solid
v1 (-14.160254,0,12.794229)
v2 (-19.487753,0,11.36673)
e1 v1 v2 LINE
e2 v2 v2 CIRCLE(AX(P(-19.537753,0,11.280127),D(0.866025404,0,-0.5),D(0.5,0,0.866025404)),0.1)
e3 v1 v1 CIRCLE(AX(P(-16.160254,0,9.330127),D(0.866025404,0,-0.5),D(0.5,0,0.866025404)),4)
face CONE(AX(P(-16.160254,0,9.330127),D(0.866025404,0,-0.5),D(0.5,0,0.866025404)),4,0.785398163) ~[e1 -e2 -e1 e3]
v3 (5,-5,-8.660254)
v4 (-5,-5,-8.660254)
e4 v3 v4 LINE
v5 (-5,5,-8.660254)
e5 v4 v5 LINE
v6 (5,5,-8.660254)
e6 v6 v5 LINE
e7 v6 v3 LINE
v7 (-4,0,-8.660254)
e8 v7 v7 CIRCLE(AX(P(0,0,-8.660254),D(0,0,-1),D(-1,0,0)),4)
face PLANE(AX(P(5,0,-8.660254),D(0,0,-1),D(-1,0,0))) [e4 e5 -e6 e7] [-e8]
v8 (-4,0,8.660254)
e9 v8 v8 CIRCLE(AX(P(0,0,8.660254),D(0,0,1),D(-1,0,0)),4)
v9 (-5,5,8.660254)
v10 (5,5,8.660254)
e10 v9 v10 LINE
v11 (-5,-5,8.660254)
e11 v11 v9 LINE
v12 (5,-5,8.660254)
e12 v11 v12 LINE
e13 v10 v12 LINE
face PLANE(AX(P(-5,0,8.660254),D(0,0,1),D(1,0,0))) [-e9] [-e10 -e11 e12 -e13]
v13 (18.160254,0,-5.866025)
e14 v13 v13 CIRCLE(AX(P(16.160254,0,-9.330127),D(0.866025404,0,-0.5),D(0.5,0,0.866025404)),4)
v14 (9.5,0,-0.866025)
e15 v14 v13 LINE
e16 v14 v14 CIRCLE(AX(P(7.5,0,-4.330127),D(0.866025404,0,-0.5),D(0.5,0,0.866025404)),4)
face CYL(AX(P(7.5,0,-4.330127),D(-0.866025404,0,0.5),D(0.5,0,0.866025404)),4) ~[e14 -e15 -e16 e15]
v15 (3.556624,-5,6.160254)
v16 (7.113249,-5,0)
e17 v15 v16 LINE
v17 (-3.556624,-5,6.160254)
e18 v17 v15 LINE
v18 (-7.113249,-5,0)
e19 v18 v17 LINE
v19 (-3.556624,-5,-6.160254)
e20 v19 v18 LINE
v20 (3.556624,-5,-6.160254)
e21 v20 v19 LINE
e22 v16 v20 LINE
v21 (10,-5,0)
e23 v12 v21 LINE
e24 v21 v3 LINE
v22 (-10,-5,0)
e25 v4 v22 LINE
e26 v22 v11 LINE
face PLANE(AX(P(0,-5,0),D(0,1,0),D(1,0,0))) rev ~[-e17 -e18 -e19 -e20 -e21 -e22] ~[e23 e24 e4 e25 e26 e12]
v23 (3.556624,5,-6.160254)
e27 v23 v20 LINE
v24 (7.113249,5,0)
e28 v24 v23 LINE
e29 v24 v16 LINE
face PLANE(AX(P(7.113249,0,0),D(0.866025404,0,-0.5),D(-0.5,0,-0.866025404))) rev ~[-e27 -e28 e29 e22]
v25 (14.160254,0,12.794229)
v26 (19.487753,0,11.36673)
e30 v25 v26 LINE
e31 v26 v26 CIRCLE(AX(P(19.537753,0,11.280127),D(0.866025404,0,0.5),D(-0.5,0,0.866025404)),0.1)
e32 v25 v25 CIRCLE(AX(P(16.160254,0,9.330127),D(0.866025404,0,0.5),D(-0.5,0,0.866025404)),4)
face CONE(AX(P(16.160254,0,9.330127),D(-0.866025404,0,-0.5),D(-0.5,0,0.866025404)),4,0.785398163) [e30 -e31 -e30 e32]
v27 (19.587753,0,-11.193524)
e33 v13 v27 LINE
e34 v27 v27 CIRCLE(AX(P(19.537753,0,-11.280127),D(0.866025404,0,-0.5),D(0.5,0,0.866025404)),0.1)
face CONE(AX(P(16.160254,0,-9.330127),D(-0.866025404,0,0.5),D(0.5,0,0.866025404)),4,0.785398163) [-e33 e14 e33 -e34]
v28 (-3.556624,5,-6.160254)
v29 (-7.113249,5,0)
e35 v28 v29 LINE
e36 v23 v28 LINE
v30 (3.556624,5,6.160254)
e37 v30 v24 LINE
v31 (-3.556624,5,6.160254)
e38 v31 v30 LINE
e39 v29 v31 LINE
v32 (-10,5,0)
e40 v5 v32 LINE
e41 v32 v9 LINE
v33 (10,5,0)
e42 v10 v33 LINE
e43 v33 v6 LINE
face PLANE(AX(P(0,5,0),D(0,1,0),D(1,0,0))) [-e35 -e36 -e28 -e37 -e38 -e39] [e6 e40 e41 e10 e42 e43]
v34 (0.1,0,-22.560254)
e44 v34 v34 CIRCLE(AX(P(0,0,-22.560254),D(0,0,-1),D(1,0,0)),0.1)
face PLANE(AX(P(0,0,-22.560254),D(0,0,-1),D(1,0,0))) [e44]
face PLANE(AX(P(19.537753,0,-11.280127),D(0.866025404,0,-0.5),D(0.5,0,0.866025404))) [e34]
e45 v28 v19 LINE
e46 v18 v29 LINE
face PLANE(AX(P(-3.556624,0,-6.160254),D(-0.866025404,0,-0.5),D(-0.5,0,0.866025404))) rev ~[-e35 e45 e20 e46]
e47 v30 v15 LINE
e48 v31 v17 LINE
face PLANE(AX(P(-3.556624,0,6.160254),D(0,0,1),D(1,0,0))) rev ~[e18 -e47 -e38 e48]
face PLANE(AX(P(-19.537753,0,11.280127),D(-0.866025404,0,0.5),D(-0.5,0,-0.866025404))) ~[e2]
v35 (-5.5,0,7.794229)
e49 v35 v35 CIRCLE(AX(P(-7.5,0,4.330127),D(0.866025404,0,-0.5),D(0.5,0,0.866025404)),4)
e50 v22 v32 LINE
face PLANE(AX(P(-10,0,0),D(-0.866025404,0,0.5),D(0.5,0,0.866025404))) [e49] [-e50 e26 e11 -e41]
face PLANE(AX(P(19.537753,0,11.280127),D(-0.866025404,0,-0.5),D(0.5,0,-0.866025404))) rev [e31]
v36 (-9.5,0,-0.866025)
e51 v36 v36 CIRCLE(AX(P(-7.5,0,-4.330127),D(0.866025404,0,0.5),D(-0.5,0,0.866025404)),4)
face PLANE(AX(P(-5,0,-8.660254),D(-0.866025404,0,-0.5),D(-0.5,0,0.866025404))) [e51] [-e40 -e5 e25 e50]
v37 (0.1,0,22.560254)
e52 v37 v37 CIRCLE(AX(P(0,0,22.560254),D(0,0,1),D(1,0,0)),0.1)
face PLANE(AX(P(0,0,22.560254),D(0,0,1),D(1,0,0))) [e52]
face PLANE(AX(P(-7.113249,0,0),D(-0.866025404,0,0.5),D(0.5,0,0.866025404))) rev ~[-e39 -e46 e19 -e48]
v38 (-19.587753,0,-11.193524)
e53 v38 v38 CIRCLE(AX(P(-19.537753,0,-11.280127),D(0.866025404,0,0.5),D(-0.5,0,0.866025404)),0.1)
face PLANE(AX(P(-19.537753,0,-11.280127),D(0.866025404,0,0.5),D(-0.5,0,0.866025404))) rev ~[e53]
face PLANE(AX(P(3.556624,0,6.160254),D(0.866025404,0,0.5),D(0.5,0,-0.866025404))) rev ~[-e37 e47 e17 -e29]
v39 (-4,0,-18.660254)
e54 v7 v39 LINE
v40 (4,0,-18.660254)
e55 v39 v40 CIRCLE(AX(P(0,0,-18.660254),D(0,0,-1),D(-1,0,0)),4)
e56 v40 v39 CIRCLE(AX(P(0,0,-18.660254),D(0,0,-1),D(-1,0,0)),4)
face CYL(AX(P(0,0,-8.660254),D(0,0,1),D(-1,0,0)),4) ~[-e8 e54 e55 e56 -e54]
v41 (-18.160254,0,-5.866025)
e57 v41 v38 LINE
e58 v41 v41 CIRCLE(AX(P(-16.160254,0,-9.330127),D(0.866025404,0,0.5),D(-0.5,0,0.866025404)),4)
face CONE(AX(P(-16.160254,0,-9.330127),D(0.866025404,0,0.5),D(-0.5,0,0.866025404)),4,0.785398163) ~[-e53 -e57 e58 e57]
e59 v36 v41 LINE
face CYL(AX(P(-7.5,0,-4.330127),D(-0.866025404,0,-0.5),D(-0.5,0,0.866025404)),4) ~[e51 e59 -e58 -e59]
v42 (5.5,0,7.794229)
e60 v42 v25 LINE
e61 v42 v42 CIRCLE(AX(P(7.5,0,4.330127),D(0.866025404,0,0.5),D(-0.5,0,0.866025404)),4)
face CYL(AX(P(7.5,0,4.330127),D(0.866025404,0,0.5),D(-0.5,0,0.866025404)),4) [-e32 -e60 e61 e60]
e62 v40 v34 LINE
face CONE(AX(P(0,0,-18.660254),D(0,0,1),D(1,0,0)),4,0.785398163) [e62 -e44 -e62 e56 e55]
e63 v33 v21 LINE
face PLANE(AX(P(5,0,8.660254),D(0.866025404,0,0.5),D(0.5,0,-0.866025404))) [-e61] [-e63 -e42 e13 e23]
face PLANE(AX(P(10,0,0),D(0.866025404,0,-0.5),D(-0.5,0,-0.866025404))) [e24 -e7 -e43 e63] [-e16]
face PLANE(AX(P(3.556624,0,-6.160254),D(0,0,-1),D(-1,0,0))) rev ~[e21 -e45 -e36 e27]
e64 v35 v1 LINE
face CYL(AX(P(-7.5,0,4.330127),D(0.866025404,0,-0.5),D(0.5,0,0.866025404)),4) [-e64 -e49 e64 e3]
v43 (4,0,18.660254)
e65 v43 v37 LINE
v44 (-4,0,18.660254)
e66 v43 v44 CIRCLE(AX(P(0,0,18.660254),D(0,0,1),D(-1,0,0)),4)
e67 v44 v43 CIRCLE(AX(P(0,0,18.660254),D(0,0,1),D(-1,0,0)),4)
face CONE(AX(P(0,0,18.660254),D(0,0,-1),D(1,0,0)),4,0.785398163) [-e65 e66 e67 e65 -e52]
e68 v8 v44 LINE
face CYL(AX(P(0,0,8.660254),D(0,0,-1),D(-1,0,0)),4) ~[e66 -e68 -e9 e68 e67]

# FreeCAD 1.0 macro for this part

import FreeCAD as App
import Part
import Sketcher
Q = App.Units.Quantity

doc = App.newDocument("Part")
body = doc.addObject("PartDesign::Body", "Body")

sketch1 = body.newObject("Sketcher::SketchObject", "Sketch")
sketch1.AttachmentSupport = (doc.getObject("XZ_Plane"), [""])
sketch1.MapMode = "FlatFace"
sketch1.addGeometry([
    Part.LineSegment(App.Vector(5, -9, 0), App.Vector(-5, -9, 0)),
    Part.LineSegment(App.Vector(-5, -9, 0), App.Vector(-10, 0, 0)),
    Part.LineSegment(App.Vector(-10, 0, 0), App.Vector(-5, 9, 0)),
    Part.LineSegment(App.Vector(-5, 9, 0), App.Vector(5, 9, 0)),
    Part.LineSegment(App.Vector(5, 9, 0), App.Vector(10, 0, 0)),
    Part.LineSegment(App.Vector(10, 0, 0), App.Vector(5, -9, 0)),
    Part.LineSegment(App.Vector(-4, 6, 0), App.Vector(-7, 0, 0)),
    Part.LineSegment(App.Vector(-7, 0, 0), App.Vector(-4, -6, 0)),
    Part.LineSegment(App.Vector(-4, -6, 0), App.Vector(4, -6, 0)),
    Part.LineSegment(App.Vector(4, -6, 0), App.Vector(7, 0, 0)),
    Part.LineSegment(App.Vector(7, 0, 0), App.Vector(4, 6, 0)),
    Part.LineSegment(App.Vector(4, 6, 0), App.Vector(-4, 6, 0)),
], False)
sketch1.addConstraint([
    Sketcher.Constraint("Coincident", 0, 2, 1, 1),
    Sketcher.Constraint("Coincident", 1, 2, 2, 1),
    Sketcher.Constraint("Coincident", 2, 2, 3, 1),
    Sketcher.Constraint("Coincident", 3, 2, 4, 1),
    Sketcher.Constraint("Coincident", 4, 2, 5, 1),
    Sketcher.Constraint("Coincident", 5, 2, 0, 1),
    Sketcher.Constraint("Coincident", 6, 2, 7, 1),
    Sketcher.Constraint("Coincident", 7, 2, 8, 1),
    Sketcher.Constraint("Coincident", 8, 2, 9, 1),
    Sketcher.Constraint("Coincident", 9, 2, 10, 1),
    Sketcher.Constraint("Coincident", 10, 2, 11, 1),
    Sketcher.Constraint("Coincident", 11, 2, 6, 1),
    Sketcher.Constraint("Horizontal", 0),
    Sketcher.Constraint("Horizontal", 3),
    Sketcher.Constraint("Horizontal", 8),
    Sketcher.Constraint("Horizontal", 11),
    Sketcher.Constraint("Symmetric", 0, 2, 3, 2, -1, 1),
    Sketcher.Constraint("Symmetric", 1, 2, 4, 2, -1, 1),
    Sketcher.Constraint("Symmetric", 6, 2, 9, 2, -1, 1),
    Sketcher.Constraint("Symmetric", 7, 2, 10, 2, -1, 1),
    Sketcher.Constraint("PointOnObject", 1, 2, -1),
    Sketcher.Constraint("PointOnObject", 6, 2, -1),
    Sketcher.Constraint("Parallel", 2, 5),
    Sketcher.Constraint("Parallel", 5, 6),
    Sketcher.Constraint("Parallel", 4, 7),
    Sketcher.Constraint("Parallel", 6, 9),
    Sketcher.Constraint("Vertical", 0, 2, 2, 2),
    Sketcher.Constraint("DistanceX", 0, 2, 0, 1, Q("10 mm")),
    Sketcher.Constraint("Angle", 1, Q("120 deg")),
    Sketcher.Constraint("Distance", 1, Q("10 mm")),
    Sketcher.Constraint("DistanceY", 0, 2, 7, 2, Q("2.5 mm")),
    Sketcher.Constraint("DistanceX", 8, 1, 8, 2, Q("7.113249 mm")),
])
pad1 = body.newObject("PartDesign::Pad", "Pad")
pad1.Profile = sketch1
pad1.Length = 10
pad1.Midplane = True

sketch2 = body.newObject("Sketcher::SketchObject", "Sketch001")
sketch2.AttachmentSupport = (doc.getObject("XY_Plane"), [""])
sketch2.MapMode = "FlatFace"
sketch2.AttachmentOffset = App.Placement(App.Vector(0, 0, -8.660254), App.Rotation())
sketch2.addGeometry(Part.Circle(App.Vector(0, 0, 0), App.Vector(0, 0, 1), 4), False)
sketch2.addConstraint([
    Sketcher.Constraint("Coincident", 0, 3, -1, 1),
    Sketcher.Constraint("Diameter", 0, Q("8 mm")),
])
pad2 = body.newObject("PartDesign::Pad", "Pad001")
pad2.Profile = sketch2
pad2.Length = 10
pad2.Reversed = True

sketch3 = body.newObject("Sketcher::SketchObject", "Sketch002")
sketch3.AttachmentSupport = (doc.getObject("YZ_Plane"), [""])
sketch3.MapMode = "FlatFace"
sketch3.addGeometry([
    Part.LineSegment(App.Vector(0.1, -22.56, 0), App.Vector(4, -18.66, 0)),
    Part.LineSegment(App.Vector(4, -18.66, 0), App.Vector(0, -18.66, 0)),
    Part.LineSegment(App.Vector(0, -18.66, 0), App.Vector(0, -22.56, 0)),
    Part.LineSegment(App.Vector(0, -22.56, 0), App.Vector(0.1, -22.56, 0)),
], False)
sketch3.addConstraint([
    Sketcher.Constraint("Coincident", 0, 2, 1, 1),
    Sketcher.Constraint("Coincident", 1, 2, 2, 1),
    Sketcher.Constraint("Coincident", 2, 2, 3, 1),
    Sketcher.Constraint("Coincident", 3, 2, 0, 1),
    Sketcher.Constraint("Horizontal", 1),
    Sketcher.Constraint("Vertical", 2),
    Sketcher.Constraint("Horizontal", 3),
    Sketcher.Constraint("PointOnObject", 1, 2, -2),
    Sketcher.Constraint("DistanceX", 1, 2, 1, 1, Q("4 mm")),
    Sketcher.Constraint("Angle", 0, Q("45 deg")),
    Sketcher.Constraint("DistanceX", 3, 1, 3, 2, Q("0.1 mm")),
    Sketcher.Constraint("DistanceY", 0, 2, -1, 1, Q("18.660254 mm")),
])
revolution = body.newObject("PartDesign::Revolution", "Revolution")
revolution.Profile = sketch3
revolution.ReferenceAxis = (sketch3, ["V_Axis"])
revolution.Angle = 360

sketch4 = body.newObject("Sketcher::SketchObject", "Sketch003")
sketch4.Placement = App.Placement(App.Vector(7.5, 0, -4.330127), App.Rotation(App.Vector(-0.5, 0, -0.866025404), App.Vector(0, 1, 0), App.Vector(0.866025404, 0, -0.5), "ZXY"))
sketch4.addGeometry(Part.Circle(App.Vector(0, 0, 0), App.Vector(0, 0, 1), 4), False)
sketch4.addConstraint([
    Sketcher.Constraint("Coincident", 0, 3, -1, 1),
    Sketcher.Constraint("Diameter", 0, Q("8 mm")),
])
pad3 = body.newObject("PartDesign::Pad", "Pad002")
pad3.Profile = sketch4
pad3.Length = 10

sketch5 = body.newObject("Sketcher::SketchObject", "Sketch004")
sketch5.AttachmentSupport = (doc.getObject("XZ_Plane"), [""])
sketch5.MapMode = "FlatFace"
sketch5.addGeometry([
    Part.LineSegment(App.Vector(19.49, -11.37, 0), App.Vector(14.16, -12.79, 0)),
    Part.LineSegment(App.Vector(14.16, -12.79, 0), App.Vector(16.16, -9.33, 0)),
    Part.LineSegment(App.Vector(16.16, -9.33, 0), App.Vector(19.54, -11.28, 0)),
    Part.LineSegment(App.Vector(19.54, -11.28, 0), App.Vector(19.49, -11.37, 0)),
], False)
sketch5.addGeometry(Part.LineSegment(App.Vector(16.16, -9.33, 0), App.Vector(19.54, -11.28, 0)), True)
sketch5.addConstraint([
    Sketcher.Constraint("Coincident", 0, 2, 1, 1),
    Sketcher.Constraint("Coincident", 1, 2, 2, 1),
    Sketcher.Constraint("Coincident", 2, 2, 3, 1),
    Sketcher.Constraint("Coincident", 3, 2, 0, 1),
    Sketcher.Constraint("Coincident", 4, 1, 1, 2),
    Sketcher.Constraint("Coincident", 4, 2, 2, 2),
    Sketcher.Constraint("Perpendicular", 1, 2),
    Sketcher.Constraint("Perpendicular", 2, 3),
    Sketcher.Constraint("Angle", 0, Q("-165 deg")),
    Sketcher.Constraint("Angle", 1, Q("60 deg")),
    Sketcher.Constraint("Distance", 1, Q("4 mm")),
    Sketcher.Constraint("Distance", 2, Q("3.9 mm")),
    Sketcher.Constraint("DistanceY", 0, 2, -1, 1, Q("12.794229 mm")),
    Sketcher.Constraint("DistanceX", -1, 1, 0, 2, Q("14.160254 mm")),
])
revolution2 = body.newObject("PartDesign::Revolution", "Revolution001")
revolution2.Profile = sketch5
revolution2.ReferenceAxis = (sketch5, ["Axis0"])
revolution2.Angle = 360

sketch6 = body.newObject("Sketcher::SketchObject", "Sketch005")
sketch6.AttachmentSupport = (doc.getObject("XZ_Plane"), [""])
sketch6.MapMode = "FlatFace"
sketch6.addGeometry([
    Part.LineSegment(App.Vector(18.16, 5.87, 0), App.Vector(9.5, 0.87, 0)),
    Part.LineSegment(App.Vector(9.5, 0.87, 0), App.Vector(7.5, 4.33, 0)),
    Part.LineSegment(App.Vector(7.5, 4.33, 0), App.Vector(19.54, 11.28, 0)),
    Part.LineSegment(App.Vector(19.54, 11.28, 0), App.Vector(19.59, 11.19, 0)),
    Part.LineSegment(App.Vector(19.59, 11.19, 0), App.Vector(18.16, 5.87, 0)),
], False)
sketch6.addGeometry(Part.LineSegment(App.Vector(7.5, 4.33, 0), App.Vector(19.54, 11.28, 0)), True)
sketch6.addConstraint([
    Sketcher.Constraint("Coincident", 0, 2, 1, 1),
    Sketcher.Constraint("Coincident", 1, 2, 2, 1),
    Sketcher.Constraint("Coincident", 2, 2, 3, 1),
    Sketcher.Constraint("Coincident", 3, 2, 4, 1),
    Sketcher.Constraint("Coincident", 4, 2, 0, 1),
    Sketcher.Constraint("Coincident", 5, 1, 1, 2),
    Sketcher.Constraint("Coincident", 5, 2, 2, 2),
    Sketcher.Constraint("Perpendicular", 0, 1),
    Sketcher.Constraint("Perpendicular", 1, 2),
    Sketcher.Constraint("Perpendicular", 2, 3),
    Sketcher.Constraint("Angle", 0, Q("-150 deg")),
    Sketcher.Constraint("Angle", 4, Q("-105 deg")),
    Sketcher.Constraint("Distance", 0, Q("10 mm")),
    Sketcher.Constraint("Distance", 1, Q("4 mm")),
    Sketcher.Constraint("Distance", 2, Q("13.9 mm")),
    Sketcher.Constraint("DistanceX", -1, 1, 0, 2, Q("9.5 mm")),
    Sketcher.Constraint("DistanceY", -1, 1, 0, 2, Q("0.866025 mm")),
])
revolution3 = body.newObject("PartDesign::Revolution", "Revolution002")
revolution3.Profile = sketch6
revolution3.ReferenceAxis = (sketch6, ["Axis0"])
revolution3.Angle = 360
doc.recompute()

datumplane = body.newObject("PartDesign::Plane", "DatumPlane")
datumplane.Placement = App.Placement(App.Vector(0, 0, 0), App.Rotation(App.Vector(0.5, 0, 0.866025404), App.Vector(0, -1, 0), App.Vector(0.866025404, 0, -0.5), "ZXY"))
mirrored = body.newObject("PartDesign::Mirrored", "Mirrored")
mirrored.Originals = [pad3, revolution2]
mirrored.MirrorPlane = (datumplane, [""])
body.Tip = mirrored
doc.recompute()

datumplane2 = body.newObject("PartDesign::Plane", "DatumPlane001")
datumplane2.Placement = App.Placement(App.Vector(0, 0, 0), App.Rotation(App.Vector(-0.5, 0, 0.866025404), App.Vector(0, -1, 0), App.Vector(0.866025404, 0, 0.5), "ZXY"))
mirrored2 = body.newObject("PartDesign::Mirrored", "Mirrored001")
mirrored2.Originals = [revolution3]
mirrored2.MirrorPlane = (datumplane2, [""])
body.Tip = mirrored2

sketch7 = body.newObject("Sketcher::SketchObject", "Sketch006")
sketch7.AttachmentSupport = (doc.getObject("XY_Plane"), [""])
sketch7.MapMode = "FlatFace"
sketch7.AttachmentOffset = App.Placement(App.Vector(0, 0, 8.660254), App.Rotation())
sketch7.addGeometry(Part.Circle(App.Vector(0, 0, 0), App.Vector(0, 0, 1), 4), False)
sketch7.addConstraint([
    Sketcher.Constraint("Coincident", 0, 3, -1, 1),
    Sketcher.Constraint("Diameter", 0, Q("8 mm")),
])
pad4 = body.newObject("PartDesign::Pad", "Pad003")
pad4.Profile = sketch7
pad4.Length = 10

sketch8 = body.newObject("Sketcher::SketchObject", "Sketch007")
sketch8.AttachmentSupport = (doc.getObject("XZ_Plane"), [""])
sketch8.MapMode = "FlatFace"
sketch8.addGeometry([
    Part.LineSegment(App.Vector(0.1, 22.56, 0), App.Vector(4, 18.66, 0)),
    Part.LineSegment(App.Vector(4, 18.66, 0), App.Vector(0, 18.66, 0)),
    Part.LineSegment(App.Vector(0, 18.66, 0), App.Vector(0, 22.56, 0)),
    Part.LineSegment(App.Vector(0, 22.56, 0), App.Vector(0.1, 22.56, 0)),
], False)
sketch8.addConstraint([
    Sketcher.Constraint("Coincident", 0, 2, 1, 1),
    Sketcher.Constraint("Coincident", 1, 2, 2, 1),
    Sketcher.Constraint("Coincident", 2, 2, 3, 1),
    Sketcher.Constraint("Coincident", 3, 2, 0, 1),
    Sketcher.Constraint("Horizontal", 1),
    Sketcher.Constraint("Vertical", 2),
    Sketcher.Constraint("Horizontal", 3),
    Sketcher.Constraint("PointOnObject", 1, 2, -2),
    Sketcher.Constraint("DistanceX", 1, 2, 1, 1, Q("4 mm")),
    Sketcher.Constraint("Angle", 0, Q("-45 deg")),
    Sketcher.Constraint("DistanceX", 3, 1, 3, 2, Q("0.1 mm")),
    Sketcher.Constraint("DistanceY", -1, 1, 0, 2, Q("18.660254 mm")),
])
revolution4 = body.newObject("PartDesign::Revolution", "Revolution003")
revolution4.Profile = sketch8
revolution4.ReferenceAxis = (sketch8, ["V_Axis"])
revolution4.Angle = 360

sketch9 = body.newObject("Sketcher::SketchObject", "Sketch008")
sketch9.AttachmentSupport = (doc.getObject("XY_Plane"), [""])
sketch9.MapMode = "FlatFace"
sketch9.AttachmentOffset = App.Placement(App.Vector(0, 0, -8.660254), App.Rotation())
sketch9.addGeometry(Part.Circle(App.Vector(0, 0, 0), App.Vector(0, 0, 1), 4), False)
sketch9.addConstraint([
    Sketcher.Constraint("Coincident", 0, 3, -1, 1),
    Sketcher.Constraint("Diameter", 0, Q("8 mm")),
])
pad5 = body.newObject("PartDesign::Pad", "Pad004")
pad5.Profile = sketch9
pad5.Length = 10
pad5.Reversed = True

sketch10 = body.newObject("Sketcher::SketchObject", "Sketch009")
sketch10.AttachmentSupport = (doc.getObject("XZ_Plane"), [""])
sketch10.MapMode = "FlatFace"
sketch10.addGeometry([
    Part.LineSegment(App.Vector(4, -18.66, 0), App.Vector(0.1, -22.56, 0)),
    Part.LineSegment(App.Vector(0.1, -22.56, 0), App.Vector(0, -22.56, 0)),
    Part.LineSegment(App.Vector(0, -22.56, 0), App.Vector(0, -18.66, 0)),
    Part.LineSegment(App.Vector(0, -18.66, 0), App.Vector(4, -18.66, 0)),
], False)
sketch10.addConstraint([
    Sketcher.Constraint("Coincident", 0, 2, 1, 1),
    Sketcher.Constraint("Coincident", 1, 2, 2, 1),
    Sketcher.Constraint("Coincident", 2, 2, 3, 1),
    Sketcher.Constraint("Coincident", 3, 2, 0, 1),
    Sketcher.Constraint("Horizontal", 1),
    Sketcher.Constraint("Vertical", 2),
    Sketcher.Constraint("Horizontal", 3),
    Sketcher.Constraint("PointOnObject", 1, 2, -2),
    Sketcher.Constraint("DistanceX", 3, 1, 3, 2, Q("4 mm")),
    Sketcher.Constraint("Angle", 0, Q("-135 deg")),
    Sketcher.Constraint("DistanceX", 1, 2, 1, 1, Q("0.1 mm")),
    Sketcher.Constraint("DistanceY", 0, 2, -1, 1, Q("22.560254 mm")),
])
revolution5 = body.newObject("PartDesign::Revolution", "Revolution004")
revolution5.Profile = sketch10
revolution5.ReferenceAxis = (sketch10, ["V_Axis"])
revolution5.Angle = 360

doc.recompute()
